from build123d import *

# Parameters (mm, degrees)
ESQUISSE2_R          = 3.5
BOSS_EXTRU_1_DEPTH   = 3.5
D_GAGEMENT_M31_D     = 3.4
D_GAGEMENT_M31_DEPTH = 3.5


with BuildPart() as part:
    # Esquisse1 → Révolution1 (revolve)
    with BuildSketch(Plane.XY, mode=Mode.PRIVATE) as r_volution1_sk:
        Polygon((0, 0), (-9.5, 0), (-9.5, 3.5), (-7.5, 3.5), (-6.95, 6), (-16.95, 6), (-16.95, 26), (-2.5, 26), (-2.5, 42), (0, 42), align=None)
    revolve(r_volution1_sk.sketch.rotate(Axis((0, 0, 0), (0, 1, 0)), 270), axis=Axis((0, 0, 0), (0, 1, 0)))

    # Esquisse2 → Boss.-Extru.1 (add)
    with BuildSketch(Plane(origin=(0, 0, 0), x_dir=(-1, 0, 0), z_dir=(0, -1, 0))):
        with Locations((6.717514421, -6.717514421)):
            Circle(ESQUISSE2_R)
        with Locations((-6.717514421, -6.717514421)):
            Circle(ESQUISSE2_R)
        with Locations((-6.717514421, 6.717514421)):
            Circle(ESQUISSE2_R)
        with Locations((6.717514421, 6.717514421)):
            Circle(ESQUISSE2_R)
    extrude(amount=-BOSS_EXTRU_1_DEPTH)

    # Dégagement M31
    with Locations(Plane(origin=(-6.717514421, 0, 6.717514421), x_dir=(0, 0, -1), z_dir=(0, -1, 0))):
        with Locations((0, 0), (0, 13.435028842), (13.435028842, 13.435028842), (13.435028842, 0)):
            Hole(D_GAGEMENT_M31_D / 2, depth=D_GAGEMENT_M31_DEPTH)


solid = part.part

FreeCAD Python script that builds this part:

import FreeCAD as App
import Part
import Sketcher
from FreeCAD import Vector


def add_polygon(sketch, points):
    """Adds a closed chain of lines whose ends are joined by coincident constraints."""
    first, n = sketch.GeometryCount, len(points)
    for a, b in zip(points, points[1:] + points[:1]):
        sketch.addGeometry(Part.LineSegment(App.Vector(*a, 0), App.Vector(*b, 0)), False)
    for i in range(n):
        sketch.addConstraint(Sketcher.Constraint("Coincident", first + i, 2, first + (i + 1) % n, 1))

doc = App.newDocument("Part")
params = doc.addObject("Spreadsheet::Sheet", "Params")
for row, (alias, value) in enumerate([
    ("sketch1_width", "10 mm"),
    ("sketch1_width2", "2 mm"),
    ("sketch1_height", "42 mm"),
    ("sketch1_height2", "16 mm"),
    ("sketch1_height3", "20 mm"),
    ("revolution_angle", "360 deg"),
    ("sketch2_diameter", "7 mm"),
    ("pad1_length", "3.5 mm"),
    ("sketch3_diameter", "3.4 mm"),
    ("hole_diameter", "3.4 mm"),
    ("hole_depth", "3.5 mm"),
], start=1):
    params.set(f"A{row}", alias)
    params.set(f"B{row}", "=" + value)
    params.setAlias(f"B{row}", alias)

body = doc.addObject("PartDesign::Body", "Body")

# Sketch on XY plane
sketch1 = body.newObject("Sketcher::SketchObject", "Sketch")
sketch1.AttachmentSupport = (doc.getObject("XY_Plane"), [""])
sketch1.MapMode = "FlatFace"
add_polygon(sketch1, [(-9.5, 0), (0, 0), (0, 42), (-2.5, 42), (-2.5, 26), (-16.9, 26), (-16.9, 6), (-7, 6), (-7.5, 3.5), (-9.5, 3.5)])  # lines 0-9
sketch1.addConstraint(Sketcher.Constraint("Horizontal", 0))
sketch1.addConstraint(Sketcher.Constraint("Vertical", 1))
sketch1.addConstraint(Sketcher.Constraint("Horizontal", 2))
sketch1.addConstraint(Sketcher.Constraint("Vertical", 3))
sketch1.addConstraint(Sketcher.Constraint("Horizontal", 4))
sketch1.addConstraint(Sketcher.Constraint("Vertical", 5))
sketch1.addConstraint(Sketcher.Constraint("Horizontal", 6))
sketch1.addConstraint(Sketcher.Constraint("Horizontal", 8))
sketch1.addConstraint(Sketcher.Constraint("Vertical", 9))
sketch1.addConstraint(Sketcher.Constraint("Coincident", 0, 2, -1, 1))
sketch1.addConstraint(Sketcher.Constraint("DistanceX", 6, 1, 6, 2, 10.0))
sketch1.addConstraint(Sketcher.Constraint("DistanceX", 8, 2, 8, 1, 2.0))
sketch1.addConstraint(Sketcher.Constraint("DistanceY", 1, 1, 1, 2, 42.0))
sketch1.addConstraint(Sketcher.Constraint("DistanceY", 3, 2, 3, 1, 16.0))
sketch1.addConstraint(Sketcher.Constraint("DistanceY", 5, 2, 5, 1, 20.0))
sketch1.addConstraint(Sketcher.Constraint("DistanceX", 0, 1, 0, 2, 9.5))
sketch1.addConstraint(Sketcher.Constraint("DistanceX", 2, 2, 2, 1, 2.5))
sketch1.addConstraint(Sketcher.Constraint("DistanceY", 9, 2, 9, 1, 3.5))
sketch1.addConstraint(Sketcher.Constraint("DistanceX", 4, 2, 4, 1, 14.45))
sketch1.setExpression("Constraints[20]", "Params.sketch1_width")
sketch1.setExpression("Constraints[21]", "Params.sketch1_width2")
sketch1.setExpression("Constraints[22]", "Params.sketch1_height")
sketch1.setExpression("Constraints[23]", "Params.sketch1_height2")
sketch1.setExpression("Constraints[24]", "Params.sketch1_height3")
revolution = body.newObject("PartDesign::Revolution", "Revolution")
revolution.Profile = sketch1
revolution.ReferenceAxis = (sketch1, ["V_Axis"])
revolution.setExpression("Angle", "Params.revolution_angle")

# Sketch on XZ plane
sketch2 = body.newObject("Sketcher::SketchObject", "Sketch001")
sketch2.AttachmentSupport = (doc.getObject("XZ_Plane"), [""])
sketch2.MapMode = "FlatFace"
sketch2.addGeometry(Part.Circle(Vector(-6.7, 6.7, 0), Vector(0, 0, 1), 3.5), False)
sketch2.addGeometry(Part.Circle(Vector(6.7, 6.7, 0), Vector(0, 0, 1), 3.5), False)
sketch2.addGeometry(Part.Circle(Vector(6.7, -6.7, 0), Vector(0, 0, 1), 3.5), False)
sketch2.addGeometry(Part.Circle(Vector(-6.7, -6.7, 0), Vector(0, 0, 1), 3.5), False)
sketch2.addConstraint(Sketcher.Constraint("Equal", 0, 1))
sketch2.addConstraint(Sketcher.Constraint("Equal", 1, 2))
sketch2.addConstraint(Sketcher.Constraint("Equal", 2, 3))
sketch2.addConstraint(Sketcher.Constraint("Symmetric", 0, 3, 2, 3, -1, 1))
sketch2.addConstraint(Sketcher.Constraint("Symmetric", 1, 3, 3, 3, -1, 1))
sketch2.addConstraint(Sketcher.Constraint("Symmetric", 0, 3, 1, 3, -2))
sketch2.addConstraint(Sketcher.Constraint("Diameter", 0, 7.0))
sketch2.addConstraint(Sketcher.Constraint("DistanceX", 0, 3, 1, 3, 13.435029))
sketch2.addConstraint(Sketcher.Constraint("DistanceY", 2, 3, 1, 3, 13.435029))
sketch2.setExpression("Constraints[6]", "Params.sketch2_diameter")
pad1 = body.newObject("PartDesign::Pad", "Pad")
pad1.Profile = sketch2
pad1.setExpression("Length", "Params.pad1_length")
pad1.Reversed = True

# Sketch on XZ plane
sketch3 = body.newObject("Sketcher::SketchObject", "Sketch002")
sketch3.AttachmentSupport = (doc.getObject("XZ_Plane"), [""])
sketch3.MapMode = "FlatFace"
sketch3.addGeometry(Part.Circle(Vector(-6.7, 6.7, 0), Vector(0, 0, 1), 1.7), False)
sketch3.addGeometry(Part.Circle(Vector(6.7, 6.7, 0), Vector(0, 0, 1), 1.7), False)
sketch3.addGeometry(Part.Circle(Vector(6.7, -6.7, 0), Vector(0, 0, 1), 1.7), False)
sketch3.addGeometry(Part.Circle(Vector(-6.7, -6.7, 0), Vector(0, 0, 1), 1.7), False)
sketch3.addConstraint(Sketcher.Constraint("Equal", 0, 1))
sketch3.addConstraint(Sketcher.Constraint("Equal", 1, 2))
sketch3.addConstraint(Sketcher.Constraint("Equal", 2, 3))
sketch3.addConstraint(Sketcher.Constraint("Symmetric", 0, 3, 2, 3, -1, 1))
sketch3.addConstraint(Sketcher.Constraint("Symmetric", 1, 3, 3, 3, -1, 1))
sketch3.addConstraint(Sketcher.Constraint("Symmetric", 0, 3, 1, 3, -2))
sketch3.addConstraint(Sketcher.Constraint("Diameter", 0, 3.4))
sketch3.addConstraint(Sketcher.Constraint("DistanceX", 0, 3, 1, 3, 13.435029))
sketch3.addConstraint(Sketcher.Constraint("DistanceY", 2, 3, 1, 3, 13.435029))
sketch3.setExpression("Constraints[6]", "Params.sketch3_diameter")
doc.recompute()
hole = body.newObject("PartDesign::Hole", "Hole")
hole.Profile = sketch3
hole.ThreadType = "None"
hole.setExpression("Diameter", "Params.hole_diameter")
hole.DepthType = "Dimension"
hole.setExpression("Depth", "Params.hole_depth")
hole.DrillPoint = "Flat"

doc.recompute()
